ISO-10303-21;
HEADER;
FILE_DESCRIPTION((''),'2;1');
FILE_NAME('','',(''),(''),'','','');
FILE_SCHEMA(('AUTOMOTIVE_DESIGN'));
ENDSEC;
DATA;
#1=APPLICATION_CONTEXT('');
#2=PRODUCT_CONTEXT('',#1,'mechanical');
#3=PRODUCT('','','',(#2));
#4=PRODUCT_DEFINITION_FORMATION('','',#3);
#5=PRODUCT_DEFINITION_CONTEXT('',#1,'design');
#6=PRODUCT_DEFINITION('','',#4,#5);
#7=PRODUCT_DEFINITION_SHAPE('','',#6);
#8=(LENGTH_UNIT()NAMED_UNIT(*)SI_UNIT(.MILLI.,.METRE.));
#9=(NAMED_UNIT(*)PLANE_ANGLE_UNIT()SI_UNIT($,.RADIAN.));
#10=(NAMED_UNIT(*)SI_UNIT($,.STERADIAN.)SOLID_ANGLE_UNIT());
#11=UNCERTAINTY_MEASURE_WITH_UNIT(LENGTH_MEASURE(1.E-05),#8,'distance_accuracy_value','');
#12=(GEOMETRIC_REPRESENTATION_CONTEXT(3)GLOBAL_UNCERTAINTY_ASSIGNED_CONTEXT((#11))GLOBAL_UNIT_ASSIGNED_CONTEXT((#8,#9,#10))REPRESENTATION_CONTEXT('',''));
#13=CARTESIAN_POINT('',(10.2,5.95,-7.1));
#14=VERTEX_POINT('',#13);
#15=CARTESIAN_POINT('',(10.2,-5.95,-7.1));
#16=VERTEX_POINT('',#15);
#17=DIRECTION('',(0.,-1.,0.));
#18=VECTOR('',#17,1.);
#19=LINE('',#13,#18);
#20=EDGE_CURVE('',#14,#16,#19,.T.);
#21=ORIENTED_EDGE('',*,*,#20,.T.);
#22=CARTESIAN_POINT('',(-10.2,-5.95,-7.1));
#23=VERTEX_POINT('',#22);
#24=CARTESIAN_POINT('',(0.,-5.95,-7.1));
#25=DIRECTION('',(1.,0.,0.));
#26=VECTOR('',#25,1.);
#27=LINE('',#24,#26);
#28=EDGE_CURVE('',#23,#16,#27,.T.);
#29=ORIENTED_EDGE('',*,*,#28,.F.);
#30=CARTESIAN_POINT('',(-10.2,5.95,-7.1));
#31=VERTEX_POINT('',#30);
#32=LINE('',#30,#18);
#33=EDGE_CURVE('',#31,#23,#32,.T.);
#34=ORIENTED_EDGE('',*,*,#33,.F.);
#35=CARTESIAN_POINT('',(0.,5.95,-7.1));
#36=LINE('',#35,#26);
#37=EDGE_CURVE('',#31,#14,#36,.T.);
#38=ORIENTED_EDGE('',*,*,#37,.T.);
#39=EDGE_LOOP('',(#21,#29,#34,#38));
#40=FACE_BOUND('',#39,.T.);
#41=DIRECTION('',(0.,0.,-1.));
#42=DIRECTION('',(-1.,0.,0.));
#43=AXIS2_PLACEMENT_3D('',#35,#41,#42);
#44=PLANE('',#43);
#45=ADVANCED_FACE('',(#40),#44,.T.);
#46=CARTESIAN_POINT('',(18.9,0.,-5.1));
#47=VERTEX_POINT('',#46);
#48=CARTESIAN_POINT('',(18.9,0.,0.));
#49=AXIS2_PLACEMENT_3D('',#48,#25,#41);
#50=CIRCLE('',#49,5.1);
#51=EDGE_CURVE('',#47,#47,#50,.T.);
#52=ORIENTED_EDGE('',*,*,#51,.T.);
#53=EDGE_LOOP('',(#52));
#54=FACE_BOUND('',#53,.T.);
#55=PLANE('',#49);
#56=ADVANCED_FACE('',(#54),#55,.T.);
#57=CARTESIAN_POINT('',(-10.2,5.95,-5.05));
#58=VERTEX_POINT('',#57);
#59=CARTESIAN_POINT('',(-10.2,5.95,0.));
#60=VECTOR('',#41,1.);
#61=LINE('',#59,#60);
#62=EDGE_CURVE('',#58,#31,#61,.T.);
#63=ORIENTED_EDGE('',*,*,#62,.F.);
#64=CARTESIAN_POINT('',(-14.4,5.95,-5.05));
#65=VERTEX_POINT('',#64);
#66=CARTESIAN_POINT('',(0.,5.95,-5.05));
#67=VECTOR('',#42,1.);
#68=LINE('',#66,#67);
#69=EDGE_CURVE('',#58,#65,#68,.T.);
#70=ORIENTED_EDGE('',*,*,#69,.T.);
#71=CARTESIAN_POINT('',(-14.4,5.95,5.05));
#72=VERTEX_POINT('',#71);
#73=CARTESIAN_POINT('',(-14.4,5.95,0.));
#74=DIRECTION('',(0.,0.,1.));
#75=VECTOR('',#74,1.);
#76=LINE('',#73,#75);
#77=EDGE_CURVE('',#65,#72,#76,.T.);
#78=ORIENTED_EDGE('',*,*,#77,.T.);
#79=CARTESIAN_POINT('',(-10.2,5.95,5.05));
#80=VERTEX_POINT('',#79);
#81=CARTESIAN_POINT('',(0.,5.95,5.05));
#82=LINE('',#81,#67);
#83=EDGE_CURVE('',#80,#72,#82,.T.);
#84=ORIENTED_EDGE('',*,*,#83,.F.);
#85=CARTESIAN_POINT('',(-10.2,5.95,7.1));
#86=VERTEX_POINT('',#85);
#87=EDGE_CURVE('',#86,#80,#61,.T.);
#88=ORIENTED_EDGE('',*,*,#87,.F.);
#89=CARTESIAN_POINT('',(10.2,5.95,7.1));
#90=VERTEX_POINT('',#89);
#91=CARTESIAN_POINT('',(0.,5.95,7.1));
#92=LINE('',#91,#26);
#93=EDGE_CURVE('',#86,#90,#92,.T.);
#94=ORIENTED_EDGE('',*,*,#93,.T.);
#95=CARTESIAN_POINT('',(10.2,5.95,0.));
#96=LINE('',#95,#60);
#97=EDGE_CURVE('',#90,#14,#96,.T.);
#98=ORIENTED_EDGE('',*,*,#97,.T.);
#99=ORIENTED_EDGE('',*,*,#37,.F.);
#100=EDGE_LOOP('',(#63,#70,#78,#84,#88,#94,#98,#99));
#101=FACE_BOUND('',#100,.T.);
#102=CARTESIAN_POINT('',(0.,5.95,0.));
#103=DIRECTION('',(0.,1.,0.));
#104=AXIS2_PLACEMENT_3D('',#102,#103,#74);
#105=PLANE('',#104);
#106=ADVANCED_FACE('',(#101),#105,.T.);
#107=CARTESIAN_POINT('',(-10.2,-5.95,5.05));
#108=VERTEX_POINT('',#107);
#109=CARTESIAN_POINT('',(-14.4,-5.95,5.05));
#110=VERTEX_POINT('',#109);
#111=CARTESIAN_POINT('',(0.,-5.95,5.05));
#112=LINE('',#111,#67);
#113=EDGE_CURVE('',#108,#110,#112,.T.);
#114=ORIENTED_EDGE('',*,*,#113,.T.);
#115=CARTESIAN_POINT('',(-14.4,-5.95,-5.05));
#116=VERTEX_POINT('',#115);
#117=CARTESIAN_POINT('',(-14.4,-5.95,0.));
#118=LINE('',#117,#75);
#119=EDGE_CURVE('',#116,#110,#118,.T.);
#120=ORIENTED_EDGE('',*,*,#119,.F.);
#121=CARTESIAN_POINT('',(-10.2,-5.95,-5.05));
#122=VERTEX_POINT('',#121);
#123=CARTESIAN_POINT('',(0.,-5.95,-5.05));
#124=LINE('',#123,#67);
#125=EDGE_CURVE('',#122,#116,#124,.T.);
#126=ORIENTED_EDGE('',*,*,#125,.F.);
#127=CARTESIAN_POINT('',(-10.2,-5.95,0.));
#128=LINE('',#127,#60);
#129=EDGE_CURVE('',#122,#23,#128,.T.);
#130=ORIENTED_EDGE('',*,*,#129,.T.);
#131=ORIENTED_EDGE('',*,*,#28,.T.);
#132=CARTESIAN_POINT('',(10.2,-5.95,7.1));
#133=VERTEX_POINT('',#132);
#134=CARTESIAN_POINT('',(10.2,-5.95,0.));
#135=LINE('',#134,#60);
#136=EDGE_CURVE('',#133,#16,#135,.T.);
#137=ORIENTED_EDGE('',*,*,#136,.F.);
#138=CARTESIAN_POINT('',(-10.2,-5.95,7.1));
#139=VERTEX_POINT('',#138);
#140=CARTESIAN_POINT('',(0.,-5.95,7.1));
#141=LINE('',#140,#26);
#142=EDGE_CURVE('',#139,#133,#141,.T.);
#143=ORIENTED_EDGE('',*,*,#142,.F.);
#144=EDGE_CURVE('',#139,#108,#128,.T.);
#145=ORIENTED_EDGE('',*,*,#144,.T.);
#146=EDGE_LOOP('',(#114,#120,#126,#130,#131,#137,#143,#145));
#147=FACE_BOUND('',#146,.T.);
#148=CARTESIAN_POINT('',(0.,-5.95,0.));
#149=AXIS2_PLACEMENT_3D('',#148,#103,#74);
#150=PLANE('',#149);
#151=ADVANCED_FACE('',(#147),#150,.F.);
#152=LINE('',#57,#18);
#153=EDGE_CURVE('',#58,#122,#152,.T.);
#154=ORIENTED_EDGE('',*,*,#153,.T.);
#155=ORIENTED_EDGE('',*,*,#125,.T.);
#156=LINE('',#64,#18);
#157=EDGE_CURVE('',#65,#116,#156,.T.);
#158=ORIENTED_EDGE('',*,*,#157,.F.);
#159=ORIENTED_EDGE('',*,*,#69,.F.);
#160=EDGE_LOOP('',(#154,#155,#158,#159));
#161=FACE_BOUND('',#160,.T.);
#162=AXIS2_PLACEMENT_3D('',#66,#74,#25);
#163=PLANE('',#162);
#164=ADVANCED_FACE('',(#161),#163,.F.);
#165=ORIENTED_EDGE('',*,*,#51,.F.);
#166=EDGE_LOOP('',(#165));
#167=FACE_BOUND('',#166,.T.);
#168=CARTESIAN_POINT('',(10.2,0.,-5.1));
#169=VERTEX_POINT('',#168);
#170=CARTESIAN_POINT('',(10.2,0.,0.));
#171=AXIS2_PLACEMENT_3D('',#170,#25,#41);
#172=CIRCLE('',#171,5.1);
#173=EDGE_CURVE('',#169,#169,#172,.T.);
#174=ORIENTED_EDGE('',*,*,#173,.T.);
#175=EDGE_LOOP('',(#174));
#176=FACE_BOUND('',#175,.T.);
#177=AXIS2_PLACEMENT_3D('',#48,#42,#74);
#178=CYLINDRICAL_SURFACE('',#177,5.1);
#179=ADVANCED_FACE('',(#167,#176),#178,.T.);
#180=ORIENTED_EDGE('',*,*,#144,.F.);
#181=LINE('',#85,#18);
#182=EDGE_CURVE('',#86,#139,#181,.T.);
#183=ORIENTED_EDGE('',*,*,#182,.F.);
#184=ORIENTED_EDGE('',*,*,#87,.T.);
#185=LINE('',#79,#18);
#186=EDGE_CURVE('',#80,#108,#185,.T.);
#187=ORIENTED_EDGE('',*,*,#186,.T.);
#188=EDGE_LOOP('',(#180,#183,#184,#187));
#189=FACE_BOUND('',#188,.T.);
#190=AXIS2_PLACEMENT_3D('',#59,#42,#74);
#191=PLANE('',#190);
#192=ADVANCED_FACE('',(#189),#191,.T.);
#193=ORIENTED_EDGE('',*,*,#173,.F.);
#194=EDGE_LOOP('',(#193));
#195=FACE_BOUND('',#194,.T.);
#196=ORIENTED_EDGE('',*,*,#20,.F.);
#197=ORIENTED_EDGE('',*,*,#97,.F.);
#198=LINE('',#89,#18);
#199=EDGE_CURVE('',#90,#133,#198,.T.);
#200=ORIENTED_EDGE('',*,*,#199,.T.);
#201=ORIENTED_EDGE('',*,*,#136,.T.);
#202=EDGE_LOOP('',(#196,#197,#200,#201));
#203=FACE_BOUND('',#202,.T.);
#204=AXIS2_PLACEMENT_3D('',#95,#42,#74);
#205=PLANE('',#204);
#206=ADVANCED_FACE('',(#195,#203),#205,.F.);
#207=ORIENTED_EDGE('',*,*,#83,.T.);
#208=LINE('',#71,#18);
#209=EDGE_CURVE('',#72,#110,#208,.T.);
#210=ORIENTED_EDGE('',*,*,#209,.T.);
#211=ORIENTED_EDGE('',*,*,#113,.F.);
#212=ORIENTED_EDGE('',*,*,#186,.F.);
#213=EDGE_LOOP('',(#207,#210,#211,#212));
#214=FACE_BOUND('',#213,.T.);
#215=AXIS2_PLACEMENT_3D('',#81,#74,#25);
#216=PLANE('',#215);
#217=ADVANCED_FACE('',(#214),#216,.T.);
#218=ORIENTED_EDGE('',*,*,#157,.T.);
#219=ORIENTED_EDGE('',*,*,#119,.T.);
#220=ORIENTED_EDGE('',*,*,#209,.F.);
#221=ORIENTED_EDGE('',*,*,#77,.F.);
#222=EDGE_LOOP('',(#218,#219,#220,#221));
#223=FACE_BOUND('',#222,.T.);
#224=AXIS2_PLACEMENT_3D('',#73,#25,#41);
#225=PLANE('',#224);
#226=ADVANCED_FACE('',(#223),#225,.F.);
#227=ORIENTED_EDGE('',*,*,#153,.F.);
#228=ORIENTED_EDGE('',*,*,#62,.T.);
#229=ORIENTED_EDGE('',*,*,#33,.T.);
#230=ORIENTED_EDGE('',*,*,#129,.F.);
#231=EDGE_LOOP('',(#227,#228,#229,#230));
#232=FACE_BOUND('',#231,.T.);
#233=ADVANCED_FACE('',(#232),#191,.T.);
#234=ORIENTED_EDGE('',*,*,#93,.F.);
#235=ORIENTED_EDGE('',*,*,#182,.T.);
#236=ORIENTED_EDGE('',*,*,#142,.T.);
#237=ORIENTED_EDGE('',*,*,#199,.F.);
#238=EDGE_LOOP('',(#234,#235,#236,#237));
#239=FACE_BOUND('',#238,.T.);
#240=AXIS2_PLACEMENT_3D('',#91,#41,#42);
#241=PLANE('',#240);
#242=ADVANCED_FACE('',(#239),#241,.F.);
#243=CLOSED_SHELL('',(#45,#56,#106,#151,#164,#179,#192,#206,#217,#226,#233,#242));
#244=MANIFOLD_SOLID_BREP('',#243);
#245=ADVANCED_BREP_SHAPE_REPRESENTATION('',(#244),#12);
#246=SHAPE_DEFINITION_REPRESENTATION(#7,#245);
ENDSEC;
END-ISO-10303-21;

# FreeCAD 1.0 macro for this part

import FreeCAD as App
import Part
import Sketcher

V = App.Vector
Q = App.Units.Quantity


def add_polygon(sketch, points):
    """Adds a closed chain of lines whose ends are joined by coincident constraints."""
    first, n = sketch.GeometryCount, len(points)
    for a, b in zip(points, points[1:] + points[:1]):
        sketch.addGeometry(Part.LineSegment(App.Vector(*a, 0), App.Vector(*b, 0)), False)
    for i in range(n):
        sketch.addConstraint(Sketcher.Constraint("Coincident", first + i, 2, first + (i + 1) % n, 1))

doc = App.newDocument("Part")
body = doc.addObject("PartDesign::Body", "Body")

# Sketch on XZ plane
sketch1 = doc.addObject("Sketcher::SketchObject", "Sketch")
body.addObject(sketch1)
sketch1.AttachmentSupport = (doc.XZ_Plane, [""])
sketch1.MapMode = "FlatFace"
add_polygon(sketch1, [(-14.4, -5.05), (-14.4, 5.05), (-10.2, 5.05), (-10.2, 7.1), (10.2, 7.1), (10.2, -7.1), (-10.2, -7.1), (-10.2, -5.05)])  # lines 0-7
sketch1.addConstraint([
    Sketcher.Constraint("Vertical", 0),
    Sketcher.Constraint("Horizontal", 1),
    Sketcher.Constraint("Vertical", 2),
    Sketcher.Constraint("Horizontal", 3),
    Sketcher.Constraint("Vertical", 4),
    Sketcher.Constraint("Horizontal", 5),
    Sketcher.Constraint("Vertical", 6),
    Sketcher.Constraint("Horizontal", 7),
    Sketcher.Constraint("Symmetric", 2, 2, 4, 2, -1, 1),
    Sketcher.Constraint("Symmetric", 1, 2, 6, 2, -1),
    Sketcher.Constraint("DistanceX", 1, 1, 1, 2, Q("4.2 mm")),
    Sketcher.Constraint("DistanceX", 3, 1, 3, 2, Q("20.4 mm")),
    Sketcher.Constraint("DistanceY", 0, 1, 0, 2, Q("10.1 mm")),
    Sketcher.Constraint("DistanceY", 4, 2, 4, 1, Q("14.2 mm")),
])
pad1 = doc.addObject("PartDesign::Pad", "Pad")
body.addObject(pad1)
pad1.Profile = sketch1
pad1.Length = 11.9
pad1.Midplane = True

# Sketch on YZ plane
sketch2 = doc.addObject("Sketcher::SketchObject", "Sketch001")
body.addObject(sketch2)
sketch2.AttachmentSupport = (doc.YZ_Plane, [""])
sketch2.MapMode = "FlatFace"
sketch2.AttachmentOffset = App.Placement(V(0, 0, 10.2), App.Rotation())
sketch2.addGeometry(Part.Circle(V(0, 0, 0), V(0, 0, 1), 5.1), False)
sketch2.addConstraint([
    Sketcher.Constraint("Coincident", 0, 3, -1, 1),
    Sketcher.Constraint("Diameter", 0, Q("10.2 mm")),
])
pad2 = doc.addObject("PartDesign::Pad", "Pad001")
body.addObject(pad2)
pad2.Profile = sketch2
pad2.Length = 8.7

doc.recompute()
